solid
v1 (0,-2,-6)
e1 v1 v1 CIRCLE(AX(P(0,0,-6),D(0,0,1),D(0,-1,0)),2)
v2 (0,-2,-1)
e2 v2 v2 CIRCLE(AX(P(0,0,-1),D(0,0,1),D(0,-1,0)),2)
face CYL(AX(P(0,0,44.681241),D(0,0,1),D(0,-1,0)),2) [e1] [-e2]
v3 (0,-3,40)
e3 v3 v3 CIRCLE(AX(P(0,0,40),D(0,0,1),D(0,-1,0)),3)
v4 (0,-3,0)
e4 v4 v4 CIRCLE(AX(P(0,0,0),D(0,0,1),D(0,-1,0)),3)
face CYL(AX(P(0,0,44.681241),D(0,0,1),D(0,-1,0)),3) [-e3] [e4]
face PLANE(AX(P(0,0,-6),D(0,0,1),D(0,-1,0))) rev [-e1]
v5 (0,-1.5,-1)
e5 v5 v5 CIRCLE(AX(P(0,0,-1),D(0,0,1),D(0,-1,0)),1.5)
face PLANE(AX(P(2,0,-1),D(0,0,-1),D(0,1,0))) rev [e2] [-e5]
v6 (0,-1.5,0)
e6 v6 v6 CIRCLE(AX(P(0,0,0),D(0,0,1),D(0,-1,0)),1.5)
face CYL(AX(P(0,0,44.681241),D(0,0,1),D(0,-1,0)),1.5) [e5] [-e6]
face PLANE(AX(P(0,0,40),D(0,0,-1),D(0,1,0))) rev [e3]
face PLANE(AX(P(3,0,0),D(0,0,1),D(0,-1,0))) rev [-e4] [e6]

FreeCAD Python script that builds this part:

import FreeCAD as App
import Part
import Sketcher

V = App.Vector
Q = App.Units.Quantity


def add_polygon(sketch, points):
    """Adds a closed chain of lines whose ends are joined by coincident constraints."""
    first, n = sketch.GeometryCount, len(points)
    for a, b in zip(points, points[1:] + points[:1]):
        sketch.addGeometry(Part.LineSegment(App.Vector(*a, 0), App.Vector(*b, 0)), False)
    for i in range(n):
        sketch.addConstraint(Sketcher.Constraint("Coincident", first + i, 2, first + (i + 1) % n, 1))

doc = App.newDocument("Part")
body = doc.addObject("PartDesign::Body", "Body")

# Sketch on XZ plane
sketch1 = doc.addObject("Sketcher::SketchObject", "Sketch")
body.addObject(sketch1)
sketch1.AttachmentSupport = (doc.XZ_Plane, [""])
sketch1.MapMode = "FlatFace"
add_polygon(sketch1, [(3, 40), (0, 40), (0, -6), (2, -6), (2, -1), (1.5, -1), (1.5, 0), (3, 0)])  # lines 0-7
sketch1.addConstraint([
    Sketcher.Constraint("Horizontal", 0),
    Sketcher.Constraint("Vertical", 1),
    Sketcher.Constraint("Horizontal", 2),
    Sketcher.Constraint("Vertical", 3),
    Sketcher.Constraint("Horizontal", 4),
    Sketcher.Constraint("Vertical", 5),
    Sketcher.Constraint("Horizontal", 6),
    Sketcher.Constraint("Vertical", 7),
    Sketcher.Constraint("PointOnObject", 0, 2, -2),
    Sketcher.Constraint("PointOnObject", 5, 2, -1),
    Sketcher.Constraint("DistanceX", 0, 2, 0, 1, Q("3 mm")),
    Sketcher.Constraint("DistanceX", 2, 1, 2, 2, Q("2 mm")),
    Sketcher.Constraint("DistanceY", 1, 2, 1, 1, Q("46 mm")),
    Sketcher.Constraint("DistanceY", 3, 1, 3, 2, Q("5 mm")),
    Sketcher.Constraint("DistanceY", 5, 1, 5, 2, Q("1 mm")),
    Sketcher.Constraint("DistanceX", 4, 2, 4, 1, Q("0.5 mm")),
])
revolution = doc.addObject("PartDesign::Revolution", "Revolution")
body.addObject(revolution)
revolution.Profile = sketch1
revolution.ReferenceAxis = (sketch1, ["V_Axis"])
revolution.Angle = 360

doc.recompute()
